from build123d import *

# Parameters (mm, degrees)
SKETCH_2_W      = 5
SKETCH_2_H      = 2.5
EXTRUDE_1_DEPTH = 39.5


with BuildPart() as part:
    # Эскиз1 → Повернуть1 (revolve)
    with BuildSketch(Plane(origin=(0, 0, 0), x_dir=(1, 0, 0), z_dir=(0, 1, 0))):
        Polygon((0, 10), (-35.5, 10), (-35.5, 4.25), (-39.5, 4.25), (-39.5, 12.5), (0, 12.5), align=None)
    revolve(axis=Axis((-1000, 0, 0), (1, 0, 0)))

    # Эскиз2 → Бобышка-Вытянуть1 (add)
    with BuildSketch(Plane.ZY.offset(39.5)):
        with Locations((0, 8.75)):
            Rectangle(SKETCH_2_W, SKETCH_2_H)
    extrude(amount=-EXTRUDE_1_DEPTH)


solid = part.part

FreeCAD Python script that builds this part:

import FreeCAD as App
import Part
import Sketcher

doc = App.newDocument("Part")
body = doc.addObject("PartDesign::Body", "Body")

# Sketch on XZ plane
sketch1 = body.newObject("Sketcher::SketchObject", "Sketch")
sketch1.AttachmentSupport = (doc.getObject("XZ_Plane"), [""])
sketch1.MapMode = "FlatFace"
sketch1.addGeometry([
    Part.LineSegment(App.Vector(-35.5, -10, 0), App.Vector(0, -10, 0)),  # 0
    Part.LineSegment(App.Vector(0, -10, 0), App.Vector(0, -12.5, 0)),  # 1
    Part.LineSegment(App.Vector(0, -12.5, 0), App.Vector(-39.5, -12.5, 0)),  # 2
    Part.LineSegment(App.Vector(-39.5, -12.5, 0), App.Vector(-39.5, -4.2, 0)),  # 3
    Part.LineSegment(App.Vector(-39.5, -4.2, 0), App.Vector(-35.5, -4.2, 0)),  # 4
    Part.LineSegment(App.Vector(-35.5, -4.2, 0), App.Vector(-35.5, -10, 0)),  # 5
], False)
sketch1.addConstraint([
    Sketcher.Constraint("Coincident", 0, 2, 1, 1),
    Sketcher.Constraint("Coincident", 1, 2, 2, 1),
    Sketcher.Constraint("Coincident", 2, 2, 3, 1),
    Sketcher.Constraint("Coincident", 3, 2, 4, 1),
    Sketcher.Constraint("Coincident", 4, 2, 5, 1),
    Sketcher.Constraint("Coincident", 5, 2, 0, 1),
    Sketcher.Constraint("Horizontal", 0),
    Sketcher.Constraint("Vertical", 1),
    Sketcher.Constraint("Horizontal", 2),
    Sketcher.Constraint("Vertical", 3),
    Sketcher.Constraint("Horizontal", 4),
    Sketcher.Constraint("Vertical", 5),
    Sketcher.Constraint("PointOnObject", 0, 2, -2),
    Sketcher.Constraint("DistanceX", 4, 1, 4, 2, 4.0),
    Sketcher.Constraint("DistanceX", 0, 1, 0, 2, 35.5),
    Sketcher.Constraint("DistanceY", 1, 2, 1, 1, 2.5),
    Sketcher.Constraint("DistanceY", 0, 2, -1, 1, 10.0),
    Sketcher.Constraint("DistanceY", 3, 1, 3, 2, 8.25),
])
revolution = body.newObject("PartDesign::Revolution", "Revolution")
revolution.Profile = sketch1
revolution.ReferenceAxis = (sketch1, ["H_Axis"])
revolution.Angle = 360

# Sketch on YZ plane
sketch2 = body.newObject("Sketcher::SketchObject", "Sketch001")
sketch2.AttachmentSupport = (doc.getObject("YZ_Plane"), [""])
sketch2.MapMode = "FlatFace"
sketch2.AttachmentOffset = App.Placement(App.Vector(0, 0, -39.5), App.Rotation())
sketch2.addGeometry([
    Part.LineSegment(App.Vector(10, -2.5, 0), App.Vector(7.5, -2.5, 0)),
    Part.LineSegment(App.Vector(7.5, -2.5, 0), App.Vector(7.5, 2.5, 0)),
    Part.LineSegment(App.Vector(7.5, 2.5, 0), App.Vector(10, 2.5, 0)),
    Part.LineSegment(App.Vector(10, 2.5, 0), App.Vector(10, -2.5, 0)),
], False)
sketch2.addConstraint([
    Sketcher.Constraint("Coincident", 0, 2, 1, 1),
    Sketcher.Constraint("Coincident", 1, 2, 2, 1),
    Sketcher.Constraint("Coincident", 2, 2, 3, 1),
    Sketcher.Constraint("Coincident", 3, 2, 0, 1),
    Sketcher.Constraint("Horizontal", 0),
    Sketcher.Constraint("Vertical", 1),
    Sketcher.Constraint("Horizontal", 2),
    Sketcher.Constraint("Vertical", 3),
    Sketcher.Constraint("DistanceY", 1, 1, 1, 2, 5.0),
    Sketcher.Constraint("DistanceX", 0, 2, 0, 1, 2.5),
    Sketcher.Constraint("DistanceX", -1, 1, 2, 2, 10.0),
    Sketcher.Constraint("DistanceY", 0, 2, -1, 1, 2.5),
])
pad1 = body.newObject("PartDesign::Pad", "Pad")
pad1.Profile = sketch2
pad1.Length = 39.5

doc.recompute()
